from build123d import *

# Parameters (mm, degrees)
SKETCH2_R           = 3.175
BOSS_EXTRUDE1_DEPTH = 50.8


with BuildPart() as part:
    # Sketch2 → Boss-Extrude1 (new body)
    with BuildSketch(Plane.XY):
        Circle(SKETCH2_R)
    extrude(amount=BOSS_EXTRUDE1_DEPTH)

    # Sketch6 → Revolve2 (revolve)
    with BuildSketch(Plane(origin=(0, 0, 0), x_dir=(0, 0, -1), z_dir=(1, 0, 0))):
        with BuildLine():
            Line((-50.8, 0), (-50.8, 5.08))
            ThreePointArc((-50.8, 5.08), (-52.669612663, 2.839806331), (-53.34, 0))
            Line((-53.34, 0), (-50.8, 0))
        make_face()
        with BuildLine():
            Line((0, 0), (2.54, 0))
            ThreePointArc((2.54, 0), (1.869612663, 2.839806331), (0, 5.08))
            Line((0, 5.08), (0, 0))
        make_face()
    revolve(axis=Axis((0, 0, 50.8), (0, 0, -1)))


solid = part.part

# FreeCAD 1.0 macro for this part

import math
import FreeCAD as App
import Part
import Sketcher
from FreeCAD import Vector
Q = App.Units.Quantity

doc = App.newDocument("Part")
body = doc.addObject("PartDesign::Body", "Body")

sketch1 = body.newObject("Sketcher::SketchObject", "Sketch")
sketch1.AttachmentSupport = (doc.getObject("XY_Plane"), [""])
sketch1.MapMode = "FlatFace"
sketch1.addGeometry(Part.Circle(Vector(0, 0, 0), Vector(0, 0, 1), 3.2), False)
sketch1.addConstraint(Sketcher.Constraint("Coincident", 0, 3, -1, 1))
sketch1.addConstraint(Sketcher.Constraint("Diameter", 0, Q("0.25 in")))
pad1 = body.newObject("PartDesign::Pad", "Pad")
pad1.Profile = sketch1
pad1.Length = Q("2 in")

sketch2 = body.newObject("Sketcher::SketchObject", "Sketch001")
sketch2.AttachmentSupport = (doc.getObject("YZ_Plane"), [""])
sketch2.MapMode = "FlatFace"
sketch2.addGeometry(Part.LineSegment(Vector(0, 50.8, 0), Vector(5.1, 50.8, 0)), False)
sketch2.addGeometry(Part.ArcOfCircle(Part.Circle(Vector(0, 47, 0), Vector(0, 0, 1), 6.3), math.radians(37), math.radians(90)), False)
sketch2.addGeometry(Part.LineSegment(Vector(0, 53.3, 0), Vector(0, 50.8, 0)), False)
sketch2.addGeometry(Part.LineSegment(Vector(0, 0, 0), Vector(0, -2.5, 0)), False)
sketch2.addGeometry(Part.ArcOfCircle(Part.Circle(Vector(0, 3.8, 0), Vector(0, 0, 1), 6.3), math.radians(-90), math.radians(-37)), False)
sketch2.addGeometry(Part.LineSegment(Vector(5.1, 0, 0), Vector(0, 0, 0)), False)
sketch2.addConstraint(Sketcher.Constraint("Coincident", 0, 2, 1, 1))
sketch2.addConstraint(Sketcher.Constraint("Coincident", 1, 2, 2, 1))
sketch2.addConstraint(Sketcher.Constraint("Coincident", 2, 2, 0, 1))
sketch2.addConstraint(Sketcher.Constraint("Coincident", 3, 2, 4, 1))
sketch2.addConstraint(Sketcher.Constraint("Coincident", 4, 2, 5, 1))
sketch2.addConstraint(Sketcher.Constraint("Coincident", 5, 2, 3, 1))
sketch2.addConstraint(Sketcher.Constraint("Horizontal", 0))
sketch2.addConstraint(Sketcher.Constraint("Vertical", 2))
sketch2.addConstraint(Sketcher.Constraint("Vertical", 3))
sketch2.addConstraint(Sketcher.Constraint("Horizontal", 5))
sketch2.addConstraint(Sketcher.Constraint("Coincident", 5, 2, -1, 1))
sketch2.addConstraint(Sketcher.Constraint("Equal", 1, 4))
sketch2.addConstraint(Sketcher.Constraint("PointOnObject", 1, 3, -2))
sketch2.addConstraint(Sketcher.Constraint("PointOnObject", 4, 3, -2))
sketch2.addConstraint(Sketcher.Constraint("PointOnObject", 1, 2, -2))
sketch2.addConstraint(Sketcher.Constraint("Vertical", 0, 2, 4, 2))
sketch2.addConstraint(Sketcher.Constraint("Radius", 1, Q("0.25 in")))
sketch2.addConstraint(Sketcher.Constraint("DistanceX", 0, 1, 0, 2, Q("0.2 in")))
sketch2.addConstraint(Sketcher.Constraint("DistanceY", -1, 1, 0, 2, Q("2 in")))
revolution = body.newObject("PartDesign::Revolution", "Revolution")
revolution.Profile = sketch2
revolution.ReferenceAxis = (sketch2, ["V_Axis"])
revolution.Angle = 360

doc.recompute()
